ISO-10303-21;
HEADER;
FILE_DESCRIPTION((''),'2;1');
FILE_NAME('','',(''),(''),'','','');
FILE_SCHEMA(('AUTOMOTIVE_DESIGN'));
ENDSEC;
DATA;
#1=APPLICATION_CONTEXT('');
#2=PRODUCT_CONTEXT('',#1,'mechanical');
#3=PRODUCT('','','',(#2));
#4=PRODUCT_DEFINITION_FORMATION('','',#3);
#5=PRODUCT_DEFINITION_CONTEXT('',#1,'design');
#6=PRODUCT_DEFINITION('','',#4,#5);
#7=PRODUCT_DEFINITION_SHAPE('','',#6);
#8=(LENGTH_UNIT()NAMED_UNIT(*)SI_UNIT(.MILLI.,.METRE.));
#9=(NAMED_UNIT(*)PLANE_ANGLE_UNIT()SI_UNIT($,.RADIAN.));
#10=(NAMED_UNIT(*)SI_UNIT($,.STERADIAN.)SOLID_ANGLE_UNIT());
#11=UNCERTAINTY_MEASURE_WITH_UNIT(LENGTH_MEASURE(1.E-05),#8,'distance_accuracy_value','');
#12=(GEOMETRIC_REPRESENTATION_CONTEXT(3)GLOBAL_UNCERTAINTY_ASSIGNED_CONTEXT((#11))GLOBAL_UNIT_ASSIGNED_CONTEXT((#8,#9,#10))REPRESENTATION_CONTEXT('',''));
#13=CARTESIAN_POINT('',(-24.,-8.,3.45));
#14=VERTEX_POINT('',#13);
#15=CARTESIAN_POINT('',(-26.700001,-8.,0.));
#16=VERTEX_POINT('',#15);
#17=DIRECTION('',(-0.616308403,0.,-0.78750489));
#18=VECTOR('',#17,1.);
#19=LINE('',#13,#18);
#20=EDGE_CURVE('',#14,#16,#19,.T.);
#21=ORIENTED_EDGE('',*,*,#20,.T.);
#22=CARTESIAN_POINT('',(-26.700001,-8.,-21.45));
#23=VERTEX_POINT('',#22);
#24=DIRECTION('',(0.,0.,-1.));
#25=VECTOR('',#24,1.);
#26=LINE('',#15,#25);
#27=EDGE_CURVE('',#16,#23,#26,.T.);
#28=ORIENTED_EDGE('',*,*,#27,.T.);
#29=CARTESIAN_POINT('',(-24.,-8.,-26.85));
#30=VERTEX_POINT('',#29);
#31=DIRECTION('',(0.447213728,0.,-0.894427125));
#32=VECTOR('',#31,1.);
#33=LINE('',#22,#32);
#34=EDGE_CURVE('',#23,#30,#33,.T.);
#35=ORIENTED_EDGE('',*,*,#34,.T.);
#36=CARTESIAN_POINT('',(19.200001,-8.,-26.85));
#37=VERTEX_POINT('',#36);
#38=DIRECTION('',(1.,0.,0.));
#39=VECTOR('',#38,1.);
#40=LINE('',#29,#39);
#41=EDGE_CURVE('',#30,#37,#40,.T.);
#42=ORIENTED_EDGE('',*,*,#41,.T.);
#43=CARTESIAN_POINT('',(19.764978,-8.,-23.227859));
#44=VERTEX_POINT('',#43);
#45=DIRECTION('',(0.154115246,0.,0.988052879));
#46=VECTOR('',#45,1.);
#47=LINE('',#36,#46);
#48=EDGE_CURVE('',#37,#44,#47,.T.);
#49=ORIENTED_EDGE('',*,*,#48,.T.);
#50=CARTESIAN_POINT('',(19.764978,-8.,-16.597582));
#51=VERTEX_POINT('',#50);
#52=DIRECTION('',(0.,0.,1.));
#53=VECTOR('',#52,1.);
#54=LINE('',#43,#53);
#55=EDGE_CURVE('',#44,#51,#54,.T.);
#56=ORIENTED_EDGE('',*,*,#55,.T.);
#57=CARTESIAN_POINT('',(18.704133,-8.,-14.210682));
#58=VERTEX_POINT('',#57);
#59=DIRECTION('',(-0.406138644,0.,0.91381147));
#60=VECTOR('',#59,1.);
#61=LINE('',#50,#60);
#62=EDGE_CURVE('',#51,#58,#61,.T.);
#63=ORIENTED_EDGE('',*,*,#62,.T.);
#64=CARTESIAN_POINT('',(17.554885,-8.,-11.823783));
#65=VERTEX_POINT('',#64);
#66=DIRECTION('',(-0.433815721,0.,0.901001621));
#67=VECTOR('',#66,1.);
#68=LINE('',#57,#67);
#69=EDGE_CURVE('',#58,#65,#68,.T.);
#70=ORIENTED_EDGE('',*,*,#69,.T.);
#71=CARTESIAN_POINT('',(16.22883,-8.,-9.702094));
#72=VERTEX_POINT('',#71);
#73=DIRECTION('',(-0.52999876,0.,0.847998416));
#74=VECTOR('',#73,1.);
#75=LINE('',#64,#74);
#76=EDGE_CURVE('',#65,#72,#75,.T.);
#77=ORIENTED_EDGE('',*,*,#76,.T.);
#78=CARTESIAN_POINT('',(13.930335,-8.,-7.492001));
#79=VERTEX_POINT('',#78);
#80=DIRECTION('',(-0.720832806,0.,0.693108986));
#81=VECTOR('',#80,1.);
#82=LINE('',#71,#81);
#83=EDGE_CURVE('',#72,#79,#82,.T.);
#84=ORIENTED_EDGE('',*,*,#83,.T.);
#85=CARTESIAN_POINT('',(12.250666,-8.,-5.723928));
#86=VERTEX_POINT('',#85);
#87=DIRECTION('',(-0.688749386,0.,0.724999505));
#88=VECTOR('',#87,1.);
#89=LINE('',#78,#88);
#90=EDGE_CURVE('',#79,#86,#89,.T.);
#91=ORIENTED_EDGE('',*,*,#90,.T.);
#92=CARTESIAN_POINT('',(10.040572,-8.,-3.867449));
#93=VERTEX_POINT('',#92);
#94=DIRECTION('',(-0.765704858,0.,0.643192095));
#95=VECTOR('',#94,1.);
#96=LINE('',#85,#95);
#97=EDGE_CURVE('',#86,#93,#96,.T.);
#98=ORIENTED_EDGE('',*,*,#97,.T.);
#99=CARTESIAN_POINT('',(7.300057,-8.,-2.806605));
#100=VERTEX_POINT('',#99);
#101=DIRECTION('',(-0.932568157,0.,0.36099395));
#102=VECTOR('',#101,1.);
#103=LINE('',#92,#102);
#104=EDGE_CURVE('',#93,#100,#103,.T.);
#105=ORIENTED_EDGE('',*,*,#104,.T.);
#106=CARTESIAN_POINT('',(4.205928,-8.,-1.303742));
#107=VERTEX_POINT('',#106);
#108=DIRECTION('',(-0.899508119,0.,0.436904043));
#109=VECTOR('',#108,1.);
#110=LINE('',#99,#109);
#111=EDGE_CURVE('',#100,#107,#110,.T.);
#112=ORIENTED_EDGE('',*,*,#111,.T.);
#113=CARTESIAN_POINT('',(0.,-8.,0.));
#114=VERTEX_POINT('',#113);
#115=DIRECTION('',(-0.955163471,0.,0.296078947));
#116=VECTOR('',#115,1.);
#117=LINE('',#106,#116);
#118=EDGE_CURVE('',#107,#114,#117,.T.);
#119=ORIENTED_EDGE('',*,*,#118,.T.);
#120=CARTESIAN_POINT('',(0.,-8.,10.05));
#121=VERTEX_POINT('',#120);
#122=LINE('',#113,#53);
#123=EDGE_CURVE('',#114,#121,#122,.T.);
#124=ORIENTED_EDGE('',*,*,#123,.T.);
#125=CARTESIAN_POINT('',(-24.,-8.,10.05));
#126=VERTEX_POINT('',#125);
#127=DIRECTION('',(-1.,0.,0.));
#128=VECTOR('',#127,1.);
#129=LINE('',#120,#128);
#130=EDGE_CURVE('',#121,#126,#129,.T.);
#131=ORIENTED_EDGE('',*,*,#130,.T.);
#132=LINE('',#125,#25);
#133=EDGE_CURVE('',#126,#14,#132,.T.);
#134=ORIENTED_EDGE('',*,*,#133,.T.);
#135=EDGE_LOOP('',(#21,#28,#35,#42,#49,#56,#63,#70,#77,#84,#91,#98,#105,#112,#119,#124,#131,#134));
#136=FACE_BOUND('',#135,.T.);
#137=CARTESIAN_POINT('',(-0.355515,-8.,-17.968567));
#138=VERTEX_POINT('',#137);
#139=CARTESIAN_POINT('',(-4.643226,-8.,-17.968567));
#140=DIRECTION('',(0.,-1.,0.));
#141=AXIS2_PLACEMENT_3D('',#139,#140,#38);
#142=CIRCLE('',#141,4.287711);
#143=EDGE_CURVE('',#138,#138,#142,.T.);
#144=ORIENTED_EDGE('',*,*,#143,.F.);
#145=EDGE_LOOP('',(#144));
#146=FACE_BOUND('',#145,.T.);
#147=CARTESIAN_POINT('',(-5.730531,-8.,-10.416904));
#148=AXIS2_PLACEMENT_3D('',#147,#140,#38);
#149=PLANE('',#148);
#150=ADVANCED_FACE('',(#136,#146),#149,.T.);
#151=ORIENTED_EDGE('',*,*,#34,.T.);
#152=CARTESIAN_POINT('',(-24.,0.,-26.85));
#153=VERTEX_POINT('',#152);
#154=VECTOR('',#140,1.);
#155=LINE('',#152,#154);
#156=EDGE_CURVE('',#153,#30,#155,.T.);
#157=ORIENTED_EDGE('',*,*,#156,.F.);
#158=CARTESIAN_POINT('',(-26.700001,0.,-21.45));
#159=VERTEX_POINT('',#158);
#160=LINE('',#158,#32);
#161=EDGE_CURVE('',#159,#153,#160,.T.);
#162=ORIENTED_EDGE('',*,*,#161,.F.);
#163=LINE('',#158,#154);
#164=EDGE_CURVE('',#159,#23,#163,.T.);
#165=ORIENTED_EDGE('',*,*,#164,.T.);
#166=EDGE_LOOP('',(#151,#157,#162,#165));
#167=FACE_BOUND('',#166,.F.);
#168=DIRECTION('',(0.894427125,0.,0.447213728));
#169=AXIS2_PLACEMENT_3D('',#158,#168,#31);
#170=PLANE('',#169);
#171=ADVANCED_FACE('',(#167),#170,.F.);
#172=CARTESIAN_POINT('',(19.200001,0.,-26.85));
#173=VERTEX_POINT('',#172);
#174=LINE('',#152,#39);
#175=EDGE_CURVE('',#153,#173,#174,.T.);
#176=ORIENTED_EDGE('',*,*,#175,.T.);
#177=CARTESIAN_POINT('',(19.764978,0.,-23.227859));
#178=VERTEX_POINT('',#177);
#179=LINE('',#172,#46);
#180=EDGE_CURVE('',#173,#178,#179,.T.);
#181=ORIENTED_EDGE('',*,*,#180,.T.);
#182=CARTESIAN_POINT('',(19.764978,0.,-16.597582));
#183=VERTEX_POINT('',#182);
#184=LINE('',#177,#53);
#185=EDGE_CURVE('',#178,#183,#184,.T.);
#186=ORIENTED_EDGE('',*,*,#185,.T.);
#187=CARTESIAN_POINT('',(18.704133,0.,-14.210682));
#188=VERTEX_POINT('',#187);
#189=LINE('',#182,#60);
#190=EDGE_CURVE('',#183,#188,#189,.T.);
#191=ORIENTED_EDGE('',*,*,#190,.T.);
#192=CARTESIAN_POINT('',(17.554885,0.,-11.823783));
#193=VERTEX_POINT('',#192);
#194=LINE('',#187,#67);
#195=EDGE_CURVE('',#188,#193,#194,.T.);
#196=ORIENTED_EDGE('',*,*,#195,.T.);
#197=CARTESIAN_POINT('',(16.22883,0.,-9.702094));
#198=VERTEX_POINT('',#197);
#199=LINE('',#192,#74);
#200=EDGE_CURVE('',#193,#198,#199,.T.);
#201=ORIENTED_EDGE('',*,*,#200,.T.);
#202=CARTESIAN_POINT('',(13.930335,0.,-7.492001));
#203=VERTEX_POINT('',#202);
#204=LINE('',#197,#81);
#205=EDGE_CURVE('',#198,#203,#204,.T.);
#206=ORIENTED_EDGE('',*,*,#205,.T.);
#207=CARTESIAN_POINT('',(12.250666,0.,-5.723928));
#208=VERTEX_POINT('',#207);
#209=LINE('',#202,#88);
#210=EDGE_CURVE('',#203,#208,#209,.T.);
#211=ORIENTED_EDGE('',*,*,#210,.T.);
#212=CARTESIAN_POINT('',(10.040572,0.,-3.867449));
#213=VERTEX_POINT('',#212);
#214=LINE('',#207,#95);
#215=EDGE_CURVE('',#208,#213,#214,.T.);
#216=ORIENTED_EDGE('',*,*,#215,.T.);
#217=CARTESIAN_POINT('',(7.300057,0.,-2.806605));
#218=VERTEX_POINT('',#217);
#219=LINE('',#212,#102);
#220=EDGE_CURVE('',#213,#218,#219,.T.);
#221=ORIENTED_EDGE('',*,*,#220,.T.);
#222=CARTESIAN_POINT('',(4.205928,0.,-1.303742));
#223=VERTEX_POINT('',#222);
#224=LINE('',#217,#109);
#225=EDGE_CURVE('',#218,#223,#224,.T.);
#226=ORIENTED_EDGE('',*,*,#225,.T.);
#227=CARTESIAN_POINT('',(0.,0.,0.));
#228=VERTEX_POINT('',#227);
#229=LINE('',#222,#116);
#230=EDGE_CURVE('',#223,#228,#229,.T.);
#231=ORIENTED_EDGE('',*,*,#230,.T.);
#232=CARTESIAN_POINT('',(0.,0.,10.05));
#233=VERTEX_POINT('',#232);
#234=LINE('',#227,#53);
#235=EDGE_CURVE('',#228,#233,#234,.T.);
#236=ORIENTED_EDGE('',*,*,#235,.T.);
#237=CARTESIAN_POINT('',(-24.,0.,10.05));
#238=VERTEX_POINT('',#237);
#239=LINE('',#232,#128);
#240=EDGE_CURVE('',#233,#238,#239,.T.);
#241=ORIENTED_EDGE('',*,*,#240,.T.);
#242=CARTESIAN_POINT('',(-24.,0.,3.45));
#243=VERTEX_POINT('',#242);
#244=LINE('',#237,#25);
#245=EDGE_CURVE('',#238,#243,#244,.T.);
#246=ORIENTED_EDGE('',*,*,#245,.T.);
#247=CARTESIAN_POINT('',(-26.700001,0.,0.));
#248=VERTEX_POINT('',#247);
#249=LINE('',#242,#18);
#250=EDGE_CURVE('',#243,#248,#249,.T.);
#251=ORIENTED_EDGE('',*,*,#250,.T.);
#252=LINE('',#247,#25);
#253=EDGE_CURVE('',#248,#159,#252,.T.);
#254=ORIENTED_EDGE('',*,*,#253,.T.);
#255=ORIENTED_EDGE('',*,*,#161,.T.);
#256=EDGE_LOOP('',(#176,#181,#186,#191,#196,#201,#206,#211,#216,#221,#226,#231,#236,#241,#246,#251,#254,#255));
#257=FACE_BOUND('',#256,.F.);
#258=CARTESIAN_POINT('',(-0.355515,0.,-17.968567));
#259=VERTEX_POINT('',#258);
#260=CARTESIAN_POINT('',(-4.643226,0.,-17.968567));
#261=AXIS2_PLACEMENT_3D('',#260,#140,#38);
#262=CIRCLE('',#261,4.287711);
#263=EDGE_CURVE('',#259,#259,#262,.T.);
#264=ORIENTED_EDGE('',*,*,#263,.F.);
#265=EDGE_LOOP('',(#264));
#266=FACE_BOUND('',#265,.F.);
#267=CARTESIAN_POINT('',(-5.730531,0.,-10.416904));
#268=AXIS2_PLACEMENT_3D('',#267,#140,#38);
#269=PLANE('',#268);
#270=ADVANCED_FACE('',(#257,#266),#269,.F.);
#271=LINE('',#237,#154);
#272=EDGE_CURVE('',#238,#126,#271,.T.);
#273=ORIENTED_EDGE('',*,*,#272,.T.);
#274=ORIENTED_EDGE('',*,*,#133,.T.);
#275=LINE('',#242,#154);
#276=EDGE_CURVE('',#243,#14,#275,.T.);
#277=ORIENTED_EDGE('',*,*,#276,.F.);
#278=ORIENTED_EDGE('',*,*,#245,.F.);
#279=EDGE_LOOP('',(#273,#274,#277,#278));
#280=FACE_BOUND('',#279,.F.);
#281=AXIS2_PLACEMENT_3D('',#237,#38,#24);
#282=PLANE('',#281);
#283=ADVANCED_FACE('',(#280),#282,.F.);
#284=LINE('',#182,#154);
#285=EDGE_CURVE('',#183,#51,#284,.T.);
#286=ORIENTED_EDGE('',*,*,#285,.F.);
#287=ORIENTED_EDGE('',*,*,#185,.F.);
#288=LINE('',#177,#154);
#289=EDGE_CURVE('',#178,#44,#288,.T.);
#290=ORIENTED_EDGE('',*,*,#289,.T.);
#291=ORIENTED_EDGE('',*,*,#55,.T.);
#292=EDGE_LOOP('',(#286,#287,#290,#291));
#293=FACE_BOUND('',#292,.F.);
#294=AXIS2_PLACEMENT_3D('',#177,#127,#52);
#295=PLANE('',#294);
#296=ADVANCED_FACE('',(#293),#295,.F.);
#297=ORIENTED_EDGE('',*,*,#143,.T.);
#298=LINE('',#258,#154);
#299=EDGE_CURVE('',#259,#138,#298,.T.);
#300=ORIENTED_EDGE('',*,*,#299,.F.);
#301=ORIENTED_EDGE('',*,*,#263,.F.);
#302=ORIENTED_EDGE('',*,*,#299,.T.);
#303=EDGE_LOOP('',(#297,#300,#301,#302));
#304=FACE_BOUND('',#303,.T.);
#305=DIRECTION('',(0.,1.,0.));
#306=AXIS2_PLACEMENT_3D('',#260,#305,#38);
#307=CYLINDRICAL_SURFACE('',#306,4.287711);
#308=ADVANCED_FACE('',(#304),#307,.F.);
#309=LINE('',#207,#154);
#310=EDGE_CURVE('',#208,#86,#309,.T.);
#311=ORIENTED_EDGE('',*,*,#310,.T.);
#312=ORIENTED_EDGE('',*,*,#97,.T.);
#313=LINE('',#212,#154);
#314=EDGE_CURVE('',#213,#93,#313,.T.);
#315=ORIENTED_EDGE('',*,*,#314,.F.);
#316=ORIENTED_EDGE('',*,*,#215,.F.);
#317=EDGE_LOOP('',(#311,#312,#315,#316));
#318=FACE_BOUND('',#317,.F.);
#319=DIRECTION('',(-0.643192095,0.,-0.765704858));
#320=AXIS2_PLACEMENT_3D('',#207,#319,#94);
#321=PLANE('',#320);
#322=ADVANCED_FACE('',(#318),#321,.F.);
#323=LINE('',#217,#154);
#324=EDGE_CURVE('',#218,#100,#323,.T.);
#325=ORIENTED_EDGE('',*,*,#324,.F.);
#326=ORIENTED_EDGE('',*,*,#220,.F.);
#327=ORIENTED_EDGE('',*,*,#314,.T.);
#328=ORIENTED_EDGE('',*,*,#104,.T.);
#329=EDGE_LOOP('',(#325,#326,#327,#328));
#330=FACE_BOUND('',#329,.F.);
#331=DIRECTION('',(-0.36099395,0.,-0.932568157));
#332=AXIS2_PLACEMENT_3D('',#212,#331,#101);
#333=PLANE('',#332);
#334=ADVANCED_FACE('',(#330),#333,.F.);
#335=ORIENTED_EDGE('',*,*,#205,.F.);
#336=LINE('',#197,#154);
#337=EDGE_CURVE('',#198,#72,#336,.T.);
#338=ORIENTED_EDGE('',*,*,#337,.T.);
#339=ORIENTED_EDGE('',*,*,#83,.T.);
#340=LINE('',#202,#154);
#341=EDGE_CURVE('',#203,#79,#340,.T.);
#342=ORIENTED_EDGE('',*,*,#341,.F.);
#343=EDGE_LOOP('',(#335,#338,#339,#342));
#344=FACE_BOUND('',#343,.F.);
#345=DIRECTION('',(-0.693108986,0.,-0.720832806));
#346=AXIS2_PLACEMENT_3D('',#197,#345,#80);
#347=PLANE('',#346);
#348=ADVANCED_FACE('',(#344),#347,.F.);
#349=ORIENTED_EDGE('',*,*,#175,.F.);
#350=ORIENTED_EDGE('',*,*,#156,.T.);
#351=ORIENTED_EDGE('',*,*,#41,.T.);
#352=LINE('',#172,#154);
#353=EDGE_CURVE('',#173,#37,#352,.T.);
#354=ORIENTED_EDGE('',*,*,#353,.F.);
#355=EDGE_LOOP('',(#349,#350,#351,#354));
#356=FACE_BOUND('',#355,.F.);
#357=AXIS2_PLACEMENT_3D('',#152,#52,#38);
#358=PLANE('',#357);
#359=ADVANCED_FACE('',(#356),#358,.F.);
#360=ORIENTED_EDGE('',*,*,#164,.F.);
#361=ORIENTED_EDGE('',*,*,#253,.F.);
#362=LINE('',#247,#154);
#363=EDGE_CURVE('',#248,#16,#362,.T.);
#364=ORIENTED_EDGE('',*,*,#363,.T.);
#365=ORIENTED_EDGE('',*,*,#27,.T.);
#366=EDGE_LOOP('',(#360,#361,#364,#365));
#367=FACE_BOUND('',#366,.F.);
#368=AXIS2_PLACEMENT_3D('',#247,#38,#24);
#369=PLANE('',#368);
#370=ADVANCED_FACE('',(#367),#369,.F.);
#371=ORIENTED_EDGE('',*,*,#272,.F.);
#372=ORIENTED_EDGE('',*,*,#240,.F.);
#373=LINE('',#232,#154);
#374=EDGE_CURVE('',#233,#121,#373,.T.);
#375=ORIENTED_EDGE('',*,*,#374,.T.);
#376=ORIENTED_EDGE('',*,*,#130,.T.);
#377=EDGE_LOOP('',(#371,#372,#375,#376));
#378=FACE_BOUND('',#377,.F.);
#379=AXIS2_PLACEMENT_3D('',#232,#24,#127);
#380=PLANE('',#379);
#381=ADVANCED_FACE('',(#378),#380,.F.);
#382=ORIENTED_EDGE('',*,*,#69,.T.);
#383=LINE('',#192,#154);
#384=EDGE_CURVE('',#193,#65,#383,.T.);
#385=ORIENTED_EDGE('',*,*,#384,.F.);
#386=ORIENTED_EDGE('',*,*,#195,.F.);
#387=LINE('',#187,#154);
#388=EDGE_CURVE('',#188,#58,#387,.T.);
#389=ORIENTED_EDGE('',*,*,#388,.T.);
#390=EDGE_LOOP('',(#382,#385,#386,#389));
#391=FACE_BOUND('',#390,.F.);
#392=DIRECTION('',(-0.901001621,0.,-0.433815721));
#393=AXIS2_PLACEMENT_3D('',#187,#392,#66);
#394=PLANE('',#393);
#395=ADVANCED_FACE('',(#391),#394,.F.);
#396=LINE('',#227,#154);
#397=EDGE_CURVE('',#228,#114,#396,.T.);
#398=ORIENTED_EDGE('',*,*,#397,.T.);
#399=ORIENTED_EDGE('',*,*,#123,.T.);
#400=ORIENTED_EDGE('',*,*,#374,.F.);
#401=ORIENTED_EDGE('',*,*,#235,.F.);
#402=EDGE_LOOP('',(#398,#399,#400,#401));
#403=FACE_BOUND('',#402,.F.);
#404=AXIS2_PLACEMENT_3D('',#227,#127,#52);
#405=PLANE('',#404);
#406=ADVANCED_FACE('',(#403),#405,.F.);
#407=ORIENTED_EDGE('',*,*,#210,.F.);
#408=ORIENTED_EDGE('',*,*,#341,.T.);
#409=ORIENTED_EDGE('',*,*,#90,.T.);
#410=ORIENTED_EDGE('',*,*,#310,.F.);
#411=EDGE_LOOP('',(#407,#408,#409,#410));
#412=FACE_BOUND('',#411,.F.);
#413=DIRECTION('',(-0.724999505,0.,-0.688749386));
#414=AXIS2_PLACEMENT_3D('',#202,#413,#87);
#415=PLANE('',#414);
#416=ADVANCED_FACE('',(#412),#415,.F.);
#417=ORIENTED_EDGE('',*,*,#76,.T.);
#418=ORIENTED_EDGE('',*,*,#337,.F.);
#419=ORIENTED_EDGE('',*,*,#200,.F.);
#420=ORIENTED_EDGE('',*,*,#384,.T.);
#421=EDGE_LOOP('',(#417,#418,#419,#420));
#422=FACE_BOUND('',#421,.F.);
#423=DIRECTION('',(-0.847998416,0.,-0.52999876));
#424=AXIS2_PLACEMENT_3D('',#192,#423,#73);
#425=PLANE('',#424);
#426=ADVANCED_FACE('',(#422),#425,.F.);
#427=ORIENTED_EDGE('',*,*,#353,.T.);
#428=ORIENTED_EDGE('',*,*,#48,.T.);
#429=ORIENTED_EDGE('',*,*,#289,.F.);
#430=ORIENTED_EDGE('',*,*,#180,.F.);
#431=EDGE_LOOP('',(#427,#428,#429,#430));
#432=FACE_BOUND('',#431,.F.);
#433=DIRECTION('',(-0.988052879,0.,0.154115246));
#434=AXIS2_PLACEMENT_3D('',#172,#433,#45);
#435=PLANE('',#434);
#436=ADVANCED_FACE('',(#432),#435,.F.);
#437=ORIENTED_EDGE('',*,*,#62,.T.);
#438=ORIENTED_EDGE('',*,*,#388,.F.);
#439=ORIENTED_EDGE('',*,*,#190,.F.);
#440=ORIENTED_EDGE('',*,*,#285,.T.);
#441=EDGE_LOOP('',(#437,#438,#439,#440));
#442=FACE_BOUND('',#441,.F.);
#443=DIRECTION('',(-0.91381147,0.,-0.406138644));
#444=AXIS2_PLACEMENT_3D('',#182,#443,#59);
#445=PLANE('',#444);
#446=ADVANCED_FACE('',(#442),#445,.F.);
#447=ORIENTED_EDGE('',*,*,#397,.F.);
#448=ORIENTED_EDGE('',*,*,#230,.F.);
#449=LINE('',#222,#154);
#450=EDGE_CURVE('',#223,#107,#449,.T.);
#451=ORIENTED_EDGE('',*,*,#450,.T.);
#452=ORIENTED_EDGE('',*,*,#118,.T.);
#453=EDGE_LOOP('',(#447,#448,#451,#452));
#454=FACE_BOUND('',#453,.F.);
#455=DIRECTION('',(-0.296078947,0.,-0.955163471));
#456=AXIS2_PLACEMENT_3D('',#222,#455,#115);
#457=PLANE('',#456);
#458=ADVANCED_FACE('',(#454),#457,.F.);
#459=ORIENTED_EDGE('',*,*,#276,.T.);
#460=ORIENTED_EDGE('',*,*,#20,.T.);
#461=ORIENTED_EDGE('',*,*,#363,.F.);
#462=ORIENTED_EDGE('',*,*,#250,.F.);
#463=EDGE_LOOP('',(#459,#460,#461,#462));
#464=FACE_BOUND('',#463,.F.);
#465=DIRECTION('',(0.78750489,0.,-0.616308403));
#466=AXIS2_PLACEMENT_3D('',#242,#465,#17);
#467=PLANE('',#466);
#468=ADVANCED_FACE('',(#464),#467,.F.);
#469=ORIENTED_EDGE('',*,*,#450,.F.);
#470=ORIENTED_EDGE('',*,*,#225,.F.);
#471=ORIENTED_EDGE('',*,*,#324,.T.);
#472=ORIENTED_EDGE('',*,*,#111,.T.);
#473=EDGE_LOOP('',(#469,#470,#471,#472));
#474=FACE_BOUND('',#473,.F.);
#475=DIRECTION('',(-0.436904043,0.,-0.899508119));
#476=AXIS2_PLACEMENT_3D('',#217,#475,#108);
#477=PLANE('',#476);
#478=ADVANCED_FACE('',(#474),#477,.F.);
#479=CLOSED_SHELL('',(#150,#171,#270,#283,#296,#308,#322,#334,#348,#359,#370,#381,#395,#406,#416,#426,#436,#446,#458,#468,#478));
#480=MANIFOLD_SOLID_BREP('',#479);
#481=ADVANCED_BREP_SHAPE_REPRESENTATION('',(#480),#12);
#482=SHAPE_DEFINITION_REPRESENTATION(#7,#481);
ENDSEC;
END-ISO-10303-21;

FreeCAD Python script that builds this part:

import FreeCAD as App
import Part
import Sketcher
from FreeCAD import Vector
Q = App.Units.Quantity


def add_polygon(sketch, points):
    """Adds a closed chain of lines whose ends are joined by coincident constraints."""
    first, n = sketch.GeometryCount, len(points)
    for a, b in zip(points, points[1:] + points[:1]):
        sketch.addGeometry(Part.LineSegment(App.Vector(*a, 0), App.Vector(*b, 0)), False)
    for i in range(n):
        sketch.addConstraint(Sketcher.Constraint("Coincident", first + i, 2, first + (i + 1) % n, 1))

doc = App.newDocument("Part")
body = doc.addObject("PartDesign::Body", "Body")

# Sketch on XZ plane
sketch1 = body.newObject("Sketcher::SketchObject", "Sketch")
sketch1.AttachmentSupport = (doc.getObject("XZ_Plane"), [""])
sketch1.MapMode = "FlatFace"
add_polygon(sketch1, [(-26.7, -21.4), (-24, -26.9), (19.2, -26.9), (19.8, -23.2), (19.8, -16.6), (18.7, -14.2), (17.6, -11.8), (16.2, -9.7), (13.9, -7.5), (12.3, -5.7), (10, -3.9), (7.3, -2.8), (4.2, -1.3), (0, 0), (0, 10.1), (-24, 10.1), (-24, 3.5), (-26.7, 0)])  # lines 0-17
sketch1.addGeometry(Part.Circle(Vector(-4.6, -18, 0), Vector(0, 0, 1), 4.3), False)  # 18
sketch1.addConstraint([
    Sketcher.Constraint("Horizontal", 1),
    Sketcher.Constraint("Vertical", 3),
    Sketcher.Constraint("Vertical", 13),
    Sketcher.Constraint("Horizontal", 14),
    Sketcher.Constraint("Vertical", 15),
    Sketcher.Constraint("Vertical", 17),
    Sketcher.Constraint("Coincident", 12, 2, -1, 1),
    Sketcher.Constraint("PointOnObject", 16, 2, -1),
    Sketcher.Constraint("Vertical", 0, 2, 14, 2),
    Sketcher.Constraint("DistanceX", 14, 2, 14, 1, Q("24 mm")),
    Sketcher.Constraint("DistanceX", 1, 1, 1, 2, Q("43.200001 mm")),
    Sketcher.Constraint("DistanceY", 15, 2, 15, 1, Q("6.6 mm")),
    Sketcher.Constraint("DistanceY", 13, 1, 13, 2, Q("10.05 mm")),
    Sketcher.Constraint("DistanceY", 17, 2, 17, 1, Q("21.45 mm")),
    Sketcher.Constraint("DistanceX", 16, 2, -1, 1, Q("26.700001 mm")),
    Sketcher.Constraint("DistanceY", 0, 2, 17, 2, Q("5.4 mm")),
    Sketcher.Constraint("Diameter", 18, Q("8.575422 mm")),
    Sketcher.Constraint("DistanceY", 7, 2, -1, 1, Q("7.492001 mm")),
    Sketcher.Constraint("Distance", 11, Q("3.439801 mm")),
    Sketcher.Constraint("DistanceY", 3, 2, 4, 2, Q("2.3869 mm")),
    Sketcher.Constraint("DistanceY", 4, 2, 5, 2, Q("2.386899 mm")),
    Sketcher.Constraint("DistanceX", 11, 2, 6, 2, Q("12.022902 mm")),
    Sketcher.Constraint("Distance", 2, Q("3.665938 mm")),
    Sketcher.Constraint("Distance", 5, Q("2.649162 mm")),
    Sketcher.Constraint("Distance", 12, Q("4.403359 mm")),
    Sketcher.Constraint("DistanceY", 3, 1, 3, 2, Q("6.630277 mm")),
    Sketcher.Constraint("DistanceY", 2, 2, -1, 1, Q("23.227859 mm")),
    Sketcher.Constraint("DistanceX", -1, 1, 6, 2, Q("16.22883 mm")),
    Sketcher.Constraint("DistanceX", -1, 1, 9, 2, Q("10.040572 mm")),
    Sketcher.Constraint("DistanceY", 9, 2, -1, 1, Q("3.867449 mm")),
    Sketcher.Constraint("DistanceY", 2, 2, 18, 3, Q("5.259292 mm")),
    Sketcher.Constraint("DistanceX", 4, 2, 1, 2, Q("0.495868 mm")),
    Sketcher.Constraint("DistanceX", 18, 3, 4, 2, Q("23.347359 mm")),
    Sketcher.Constraint("DistanceY", 5, 2, 6, 2, Q("2.121689 mm")),
    Sketcher.Constraint("DistanceX", 7, 2, 5, 2, Q("3.62455 mm")),
    Sketcher.Constraint("DistanceX", 8, 2, 7, 2, Q("1.679669 mm")),
    Sketcher.Constraint("DistanceY", 8, 2, 9, 2, Q("1.856479 mm")),
    Sketcher.Constraint("DistanceX", 10, 2, 8, 2, Q("4.950609 mm")),
])
pad1 = body.newObject("PartDesign::Pad", "Pad")
pad1.Profile = sketch1
pad1.Length = 8

doc.recompute()
